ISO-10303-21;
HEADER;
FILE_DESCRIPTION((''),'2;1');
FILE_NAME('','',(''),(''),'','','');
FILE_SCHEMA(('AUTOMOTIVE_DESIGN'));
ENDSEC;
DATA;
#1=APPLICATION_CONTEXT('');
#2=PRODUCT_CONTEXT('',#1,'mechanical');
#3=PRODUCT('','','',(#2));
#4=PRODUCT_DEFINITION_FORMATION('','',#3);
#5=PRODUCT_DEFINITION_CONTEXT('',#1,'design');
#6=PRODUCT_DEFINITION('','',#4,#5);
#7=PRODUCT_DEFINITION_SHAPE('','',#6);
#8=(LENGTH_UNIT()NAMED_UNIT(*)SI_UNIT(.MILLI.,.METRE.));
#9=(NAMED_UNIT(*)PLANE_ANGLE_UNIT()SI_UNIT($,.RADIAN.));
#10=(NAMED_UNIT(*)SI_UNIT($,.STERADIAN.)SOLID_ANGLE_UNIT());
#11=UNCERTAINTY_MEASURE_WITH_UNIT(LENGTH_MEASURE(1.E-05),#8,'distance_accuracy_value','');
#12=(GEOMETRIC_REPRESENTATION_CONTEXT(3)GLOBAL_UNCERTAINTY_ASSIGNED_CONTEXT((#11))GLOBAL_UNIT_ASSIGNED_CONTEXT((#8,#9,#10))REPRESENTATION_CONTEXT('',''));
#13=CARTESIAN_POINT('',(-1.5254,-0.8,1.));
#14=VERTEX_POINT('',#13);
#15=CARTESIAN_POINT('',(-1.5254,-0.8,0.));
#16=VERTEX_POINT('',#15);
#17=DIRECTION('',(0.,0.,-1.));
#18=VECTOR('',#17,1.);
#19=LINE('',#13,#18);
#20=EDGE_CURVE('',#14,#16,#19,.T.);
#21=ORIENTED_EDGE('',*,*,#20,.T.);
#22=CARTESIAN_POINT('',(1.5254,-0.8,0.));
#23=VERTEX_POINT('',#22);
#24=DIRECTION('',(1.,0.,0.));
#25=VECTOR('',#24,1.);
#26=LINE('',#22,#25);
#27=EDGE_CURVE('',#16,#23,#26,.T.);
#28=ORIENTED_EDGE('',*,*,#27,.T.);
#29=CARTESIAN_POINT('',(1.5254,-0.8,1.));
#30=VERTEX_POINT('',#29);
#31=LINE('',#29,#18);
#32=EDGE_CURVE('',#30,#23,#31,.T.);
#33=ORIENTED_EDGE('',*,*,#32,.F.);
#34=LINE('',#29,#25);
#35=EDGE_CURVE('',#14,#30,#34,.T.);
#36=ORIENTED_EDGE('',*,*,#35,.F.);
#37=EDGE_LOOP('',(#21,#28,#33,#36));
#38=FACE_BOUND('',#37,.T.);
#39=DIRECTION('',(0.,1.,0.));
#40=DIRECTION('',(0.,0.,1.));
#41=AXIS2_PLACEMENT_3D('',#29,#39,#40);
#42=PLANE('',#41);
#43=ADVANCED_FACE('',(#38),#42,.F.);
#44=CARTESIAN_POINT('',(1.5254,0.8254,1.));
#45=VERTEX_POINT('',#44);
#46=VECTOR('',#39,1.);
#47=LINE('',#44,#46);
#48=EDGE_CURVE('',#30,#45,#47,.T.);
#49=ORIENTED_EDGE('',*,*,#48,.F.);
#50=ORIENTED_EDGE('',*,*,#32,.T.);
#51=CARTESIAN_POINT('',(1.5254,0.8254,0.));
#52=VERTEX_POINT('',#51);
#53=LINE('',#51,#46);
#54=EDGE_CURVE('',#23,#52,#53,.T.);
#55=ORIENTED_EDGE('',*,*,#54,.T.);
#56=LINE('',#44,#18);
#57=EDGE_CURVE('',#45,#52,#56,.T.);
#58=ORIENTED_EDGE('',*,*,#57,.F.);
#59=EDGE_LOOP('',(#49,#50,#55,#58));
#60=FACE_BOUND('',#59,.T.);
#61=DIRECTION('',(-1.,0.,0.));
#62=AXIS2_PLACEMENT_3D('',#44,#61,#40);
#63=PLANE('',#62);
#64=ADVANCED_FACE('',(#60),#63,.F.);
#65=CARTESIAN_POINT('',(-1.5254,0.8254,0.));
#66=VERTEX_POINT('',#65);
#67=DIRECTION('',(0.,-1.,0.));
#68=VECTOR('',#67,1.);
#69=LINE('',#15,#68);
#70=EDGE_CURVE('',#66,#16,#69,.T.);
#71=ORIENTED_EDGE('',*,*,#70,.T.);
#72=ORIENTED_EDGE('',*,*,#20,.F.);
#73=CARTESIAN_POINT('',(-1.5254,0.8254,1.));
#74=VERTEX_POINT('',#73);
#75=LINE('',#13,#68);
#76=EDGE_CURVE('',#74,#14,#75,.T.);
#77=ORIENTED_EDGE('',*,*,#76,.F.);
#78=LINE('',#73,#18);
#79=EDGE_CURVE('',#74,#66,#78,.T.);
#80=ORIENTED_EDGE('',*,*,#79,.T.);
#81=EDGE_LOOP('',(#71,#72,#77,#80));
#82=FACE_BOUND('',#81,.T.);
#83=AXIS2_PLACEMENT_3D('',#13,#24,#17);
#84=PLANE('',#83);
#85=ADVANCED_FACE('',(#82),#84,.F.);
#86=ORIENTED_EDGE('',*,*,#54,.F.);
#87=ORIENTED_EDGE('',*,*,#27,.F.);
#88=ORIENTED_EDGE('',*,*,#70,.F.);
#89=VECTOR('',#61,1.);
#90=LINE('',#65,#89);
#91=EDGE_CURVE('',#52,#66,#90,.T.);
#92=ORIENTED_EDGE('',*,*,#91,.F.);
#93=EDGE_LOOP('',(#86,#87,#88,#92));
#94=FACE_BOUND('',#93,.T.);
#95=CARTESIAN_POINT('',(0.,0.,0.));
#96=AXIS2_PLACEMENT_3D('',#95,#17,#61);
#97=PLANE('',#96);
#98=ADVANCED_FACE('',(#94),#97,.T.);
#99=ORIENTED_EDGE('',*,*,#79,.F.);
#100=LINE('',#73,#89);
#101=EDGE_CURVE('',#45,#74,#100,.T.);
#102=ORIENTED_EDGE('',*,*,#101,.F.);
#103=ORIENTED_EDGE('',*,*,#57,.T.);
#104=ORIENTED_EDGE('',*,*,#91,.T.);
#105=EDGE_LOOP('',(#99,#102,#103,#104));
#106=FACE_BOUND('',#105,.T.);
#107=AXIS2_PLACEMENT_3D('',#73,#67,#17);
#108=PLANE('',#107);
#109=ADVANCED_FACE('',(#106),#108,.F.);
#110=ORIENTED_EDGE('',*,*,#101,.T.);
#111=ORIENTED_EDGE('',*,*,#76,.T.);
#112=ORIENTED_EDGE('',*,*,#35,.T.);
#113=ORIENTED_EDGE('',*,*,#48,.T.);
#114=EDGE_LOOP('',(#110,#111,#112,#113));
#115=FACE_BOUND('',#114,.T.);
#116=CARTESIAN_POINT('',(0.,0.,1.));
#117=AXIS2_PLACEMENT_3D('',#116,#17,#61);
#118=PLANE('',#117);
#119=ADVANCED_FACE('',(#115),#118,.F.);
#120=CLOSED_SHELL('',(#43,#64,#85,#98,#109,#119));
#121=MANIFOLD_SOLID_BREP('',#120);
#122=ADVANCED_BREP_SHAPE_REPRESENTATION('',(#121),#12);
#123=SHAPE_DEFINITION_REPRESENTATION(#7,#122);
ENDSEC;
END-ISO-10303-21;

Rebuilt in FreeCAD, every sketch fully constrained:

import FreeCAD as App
import Part
import Sketcher
Q = App.Units.Quantity


def add_polygon(sketch, points):
    """Adds a closed chain of lines whose ends are joined by coincident constraints."""
    first, n = sketch.GeometryCount, len(points)
    for a, b in zip(points, points[1:] + points[:1]):
        sketch.addGeometry(Part.LineSegment(App.Vector(*a, 0), App.Vector(*b, 0)), False)
    for i in range(n):
        sketch.addConstraint(Sketcher.Constraint("Coincident", first + i, 2, first + (i + 1) % n, 1))

doc = App.newDocument("Part")
params = doc.addObject("Spreadsheet::Sheet", "Params")
for row, (alias, value) in enumerate([
    ("pad1_length", "1 mm"),
], start=1):
    params.set(f"A{row}", alias)
    params.set(f"B{row}", "=" + value)
    params.setAlias(f"B{row}", alias)

body = doc.addObject("PartDesign::Body", "Body")

sketch1 = body.newObject("Sketcher::SketchObject", "Sketch")
sketch1.AttachmentSupport = (doc.getObject("XY_Plane"), [""])
sketch1.MapMode = "FlatFace"
add_polygon(sketch1, [(-1.5, 0.8), (-1.5, -0.8), (1.5, -0.8), (1.5, 0.8)])
sketch1.addConstraint(Sketcher.Constraint("Vertical", 0))
sketch1.addConstraint(Sketcher.Constraint("Horizontal", 1))
sketch1.addConstraint(Sketcher.Constraint("Vertical", 2))
sketch1.addConstraint(Sketcher.Constraint("Horizontal", 3))
sketch1.addConstraint(Sketcher.Constraint("DistanceY", 0, 2, -1, 1, Q("0.8 mm")))
sketch1.addConstraint(Sketcher.Constraint("DistanceX", 1, 1, 1, 2, Q("3.0508 mm")))
sketch1.addConstraint(Sketcher.Constraint("DistanceY", 0, 2, 0, 1, Q("1.6254 mm")))
sketch1.addConstraint(Sketcher.Constraint("DistanceX", 0, 2, -1, 1, Q("1.5254 mm")))
pad1 = body.newObject("PartDesign::Pad", "Pad")
pad1.Profile = sketch1
pad1.setExpression("Length", "Params.pad1_length")

doc.recompute()
